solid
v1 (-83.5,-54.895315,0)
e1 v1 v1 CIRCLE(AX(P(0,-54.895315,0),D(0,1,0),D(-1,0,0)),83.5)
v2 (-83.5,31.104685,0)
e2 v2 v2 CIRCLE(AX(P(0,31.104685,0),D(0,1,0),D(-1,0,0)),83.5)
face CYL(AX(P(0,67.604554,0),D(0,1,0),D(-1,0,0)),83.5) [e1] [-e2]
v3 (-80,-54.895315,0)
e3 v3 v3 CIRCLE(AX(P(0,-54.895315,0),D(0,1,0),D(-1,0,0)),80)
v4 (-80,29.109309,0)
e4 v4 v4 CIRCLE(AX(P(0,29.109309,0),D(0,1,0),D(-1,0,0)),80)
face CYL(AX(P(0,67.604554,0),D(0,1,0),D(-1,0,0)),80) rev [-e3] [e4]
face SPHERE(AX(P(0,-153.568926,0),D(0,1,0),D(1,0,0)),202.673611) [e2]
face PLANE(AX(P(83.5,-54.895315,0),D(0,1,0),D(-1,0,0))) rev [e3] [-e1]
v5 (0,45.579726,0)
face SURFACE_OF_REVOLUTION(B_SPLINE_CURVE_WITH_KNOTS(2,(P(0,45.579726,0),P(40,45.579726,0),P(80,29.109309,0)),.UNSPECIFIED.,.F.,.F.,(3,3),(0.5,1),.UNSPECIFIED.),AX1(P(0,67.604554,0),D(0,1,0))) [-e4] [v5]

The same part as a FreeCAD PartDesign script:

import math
import FreeCAD as App
import Part
import Sketcher

V = App.Vector
Q = App.Units.Quantity

doc = App.newDocument("Part")
body = doc.addObject("PartDesign::Body", "Body")

# Sketch on XY plane
sketch1 = body.newObject("Sketcher::SketchObject", "Sketch")
sketch1.AttachmentSupport = (doc.getObject("XY_Plane"), [""])
sketch1.MapMode = "FlatFace"
sketch1.addGeometry(Part.LineSegment(V(83.5, -54.895315, 0), V(83.5, 31.104685, 0)), False)
sketch1.addGeometry(Part.ArcOfCircle(Part.Circle(V(0, -153.568926, 0), V(0, 0, 1), 202.673611), math.radians(65.66994), math.radians(90)), False)
sketch1.addGeometry(Part.LineSegment(V(0, 49.104685, 0), V(0, 45.579726, 0)), False)
sketch1.addGeometry(Part.BSplineCurve([V(0, 45.579726, 0), V(40, 45.579726, 0), V(80, 29.109309, 0)], [3, 3], [0.5, 1], False, 2, [1, 1, 1], False), False)
sketch1.addGeometry(Part.LineSegment(V(80, 29.109309, 0), V(80, -54.895315, 0)), False)
sketch1.addGeometry(Part.LineSegment(V(80, -54.895315, 0), V(83.5, -54.895315, 0)), False)
sketch1.addConstraint(Sketcher.Constraint("Block", 3))
sketch1.addConstraint(Sketcher.Constraint("Coincident", 0, 2, 1, 1))
sketch1.addConstraint(Sketcher.Constraint("Coincident", 1, 2, 2, 1))
sketch1.addConstraint(Sketcher.Constraint("Coincident", 2, 2, 3, 1))
sketch1.addConstraint(Sketcher.Constraint("Coincident", 3, 2, 4, 1))
sketch1.addConstraint(Sketcher.Constraint("Coincident", 4, 2, 5, 1))
sketch1.addConstraint(Sketcher.Constraint("Coincident", 5, 2, 0, 1))
sketch1.addConstraint(Sketcher.Constraint("Vertical", 0))
sketch1.addConstraint(Sketcher.Constraint("Vertical", 2))
sketch1.addConstraint(Sketcher.Constraint("Vertical", 4))
sketch1.addConstraint(Sketcher.Constraint("Horizontal", 5))
sketch1.addConstraint(Sketcher.Constraint("PointOnObject", 1, 3, -2))
sketch1.addConstraint(Sketcher.Constraint("DistanceY", 0, 1, 0, 2, Q("86 mm")))
sketch1.addConstraint(Sketcher.Constraint("DistanceX", 5, 1, 5, 2, Q("3.5 mm")))
sketch1.addConstraint(Sketcher.Constraint("DistanceY", 0, 2, 1, 2, Q("18 mm")))
sketch1.addConstraint(Sketcher.Constraint("DistanceY", 2, 2, 2, 1, Q("3.524959 mm")))
revolution = body.newObject("PartDesign::Revolution", "Revolution")
revolution.Profile = sketch1
revolution.ReferenceAxis = (sketch1, ["V_Axis"])
revolution.Angle = 360

doc.recompute()
